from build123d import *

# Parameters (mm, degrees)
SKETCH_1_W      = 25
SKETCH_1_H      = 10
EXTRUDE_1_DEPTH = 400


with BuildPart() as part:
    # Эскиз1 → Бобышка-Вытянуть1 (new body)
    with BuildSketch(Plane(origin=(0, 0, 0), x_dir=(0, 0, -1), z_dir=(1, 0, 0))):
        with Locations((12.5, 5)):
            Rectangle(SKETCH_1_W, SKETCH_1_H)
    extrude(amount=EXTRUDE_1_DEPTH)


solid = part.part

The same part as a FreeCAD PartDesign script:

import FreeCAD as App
import Part
import Sketcher

doc = App.newDocument("Part")
params = doc.addObject("Spreadsheet::Sheet", "Params")
for row, (alias, value) in enumerate([
    ("sketch1_width", "10 mm"),
    ("sketch1_height", "25 mm"),
    ("pad1_length", "400 mm"),
], start=1):
    params.set(f"A{row}", alias)
    params.set(f"B{row}", "=" + value)
    params.setAlias(f"B{row}", alias)

body = doc.addObject("PartDesign::Body", "Body")

# Sketch on YZ plane
sketch1 = body.newObject("Sketcher::SketchObject", "Sketch")
sketch1.AttachmentSupport = (doc.getObject("YZ_Plane"), [""])
sketch1.MapMode = "FlatFace"
sketch1.addGeometry(Part.LineSegment(App.Vector(10, 0, 0), App.Vector(0, 0, 0)), False)
sketch1.addGeometry(Part.LineSegment(App.Vector(0, 0, 0), App.Vector(0, -25, 0)), False)
sketch1.addGeometry(Part.LineSegment(App.Vector(0, -25, 0), App.Vector(10, -25, 0)), False)
sketch1.addGeometry(Part.LineSegment(App.Vector(10, -25, 0), App.Vector(10, 0, 0)), False)
sketch1.addConstraint(Sketcher.Constraint("Coincident", 0, 2, 1, 1))
sketch1.addConstraint(Sketcher.Constraint("Coincident", 1, 2, 2, 1))
sketch1.addConstraint(Sketcher.Constraint("Coincident", 2, 2, 3, 1))
sketch1.addConstraint(Sketcher.Constraint("Coincident", 3, 2, 0, 1))
sketch1.addConstraint(Sketcher.Constraint("Horizontal", 0))
sketch1.addConstraint(Sketcher.Constraint("Vertical", 1))
sketch1.addConstraint(Sketcher.Constraint("Horizontal", 2))
sketch1.addConstraint(Sketcher.Constraint("Vertical", 3))
sketch1.addConstraint(Sketcher.Constraint("Coincident", 0, 2, -1, 1))
sketch1.addConstraint(Sketcher.Constraint("DistanceX", 0, 2, 0, 1, 10.0))
sketch1.addConstraint(Sketcher.Constraint("DistanceY", 1, 2, 1, 1, 25.0))
sketch1.setExpression("Constraints[9]", "Params.sketch1_width")
sketch1.setExpression("Constraints[10]", "Params.sketch1_height")
pad1 = body.newObject("PartDesign::Pad", "Pad")
pad1.Profile = sketch1
pad1.setExpression("Length", "Params.pad1_length")

doc.recompute()
